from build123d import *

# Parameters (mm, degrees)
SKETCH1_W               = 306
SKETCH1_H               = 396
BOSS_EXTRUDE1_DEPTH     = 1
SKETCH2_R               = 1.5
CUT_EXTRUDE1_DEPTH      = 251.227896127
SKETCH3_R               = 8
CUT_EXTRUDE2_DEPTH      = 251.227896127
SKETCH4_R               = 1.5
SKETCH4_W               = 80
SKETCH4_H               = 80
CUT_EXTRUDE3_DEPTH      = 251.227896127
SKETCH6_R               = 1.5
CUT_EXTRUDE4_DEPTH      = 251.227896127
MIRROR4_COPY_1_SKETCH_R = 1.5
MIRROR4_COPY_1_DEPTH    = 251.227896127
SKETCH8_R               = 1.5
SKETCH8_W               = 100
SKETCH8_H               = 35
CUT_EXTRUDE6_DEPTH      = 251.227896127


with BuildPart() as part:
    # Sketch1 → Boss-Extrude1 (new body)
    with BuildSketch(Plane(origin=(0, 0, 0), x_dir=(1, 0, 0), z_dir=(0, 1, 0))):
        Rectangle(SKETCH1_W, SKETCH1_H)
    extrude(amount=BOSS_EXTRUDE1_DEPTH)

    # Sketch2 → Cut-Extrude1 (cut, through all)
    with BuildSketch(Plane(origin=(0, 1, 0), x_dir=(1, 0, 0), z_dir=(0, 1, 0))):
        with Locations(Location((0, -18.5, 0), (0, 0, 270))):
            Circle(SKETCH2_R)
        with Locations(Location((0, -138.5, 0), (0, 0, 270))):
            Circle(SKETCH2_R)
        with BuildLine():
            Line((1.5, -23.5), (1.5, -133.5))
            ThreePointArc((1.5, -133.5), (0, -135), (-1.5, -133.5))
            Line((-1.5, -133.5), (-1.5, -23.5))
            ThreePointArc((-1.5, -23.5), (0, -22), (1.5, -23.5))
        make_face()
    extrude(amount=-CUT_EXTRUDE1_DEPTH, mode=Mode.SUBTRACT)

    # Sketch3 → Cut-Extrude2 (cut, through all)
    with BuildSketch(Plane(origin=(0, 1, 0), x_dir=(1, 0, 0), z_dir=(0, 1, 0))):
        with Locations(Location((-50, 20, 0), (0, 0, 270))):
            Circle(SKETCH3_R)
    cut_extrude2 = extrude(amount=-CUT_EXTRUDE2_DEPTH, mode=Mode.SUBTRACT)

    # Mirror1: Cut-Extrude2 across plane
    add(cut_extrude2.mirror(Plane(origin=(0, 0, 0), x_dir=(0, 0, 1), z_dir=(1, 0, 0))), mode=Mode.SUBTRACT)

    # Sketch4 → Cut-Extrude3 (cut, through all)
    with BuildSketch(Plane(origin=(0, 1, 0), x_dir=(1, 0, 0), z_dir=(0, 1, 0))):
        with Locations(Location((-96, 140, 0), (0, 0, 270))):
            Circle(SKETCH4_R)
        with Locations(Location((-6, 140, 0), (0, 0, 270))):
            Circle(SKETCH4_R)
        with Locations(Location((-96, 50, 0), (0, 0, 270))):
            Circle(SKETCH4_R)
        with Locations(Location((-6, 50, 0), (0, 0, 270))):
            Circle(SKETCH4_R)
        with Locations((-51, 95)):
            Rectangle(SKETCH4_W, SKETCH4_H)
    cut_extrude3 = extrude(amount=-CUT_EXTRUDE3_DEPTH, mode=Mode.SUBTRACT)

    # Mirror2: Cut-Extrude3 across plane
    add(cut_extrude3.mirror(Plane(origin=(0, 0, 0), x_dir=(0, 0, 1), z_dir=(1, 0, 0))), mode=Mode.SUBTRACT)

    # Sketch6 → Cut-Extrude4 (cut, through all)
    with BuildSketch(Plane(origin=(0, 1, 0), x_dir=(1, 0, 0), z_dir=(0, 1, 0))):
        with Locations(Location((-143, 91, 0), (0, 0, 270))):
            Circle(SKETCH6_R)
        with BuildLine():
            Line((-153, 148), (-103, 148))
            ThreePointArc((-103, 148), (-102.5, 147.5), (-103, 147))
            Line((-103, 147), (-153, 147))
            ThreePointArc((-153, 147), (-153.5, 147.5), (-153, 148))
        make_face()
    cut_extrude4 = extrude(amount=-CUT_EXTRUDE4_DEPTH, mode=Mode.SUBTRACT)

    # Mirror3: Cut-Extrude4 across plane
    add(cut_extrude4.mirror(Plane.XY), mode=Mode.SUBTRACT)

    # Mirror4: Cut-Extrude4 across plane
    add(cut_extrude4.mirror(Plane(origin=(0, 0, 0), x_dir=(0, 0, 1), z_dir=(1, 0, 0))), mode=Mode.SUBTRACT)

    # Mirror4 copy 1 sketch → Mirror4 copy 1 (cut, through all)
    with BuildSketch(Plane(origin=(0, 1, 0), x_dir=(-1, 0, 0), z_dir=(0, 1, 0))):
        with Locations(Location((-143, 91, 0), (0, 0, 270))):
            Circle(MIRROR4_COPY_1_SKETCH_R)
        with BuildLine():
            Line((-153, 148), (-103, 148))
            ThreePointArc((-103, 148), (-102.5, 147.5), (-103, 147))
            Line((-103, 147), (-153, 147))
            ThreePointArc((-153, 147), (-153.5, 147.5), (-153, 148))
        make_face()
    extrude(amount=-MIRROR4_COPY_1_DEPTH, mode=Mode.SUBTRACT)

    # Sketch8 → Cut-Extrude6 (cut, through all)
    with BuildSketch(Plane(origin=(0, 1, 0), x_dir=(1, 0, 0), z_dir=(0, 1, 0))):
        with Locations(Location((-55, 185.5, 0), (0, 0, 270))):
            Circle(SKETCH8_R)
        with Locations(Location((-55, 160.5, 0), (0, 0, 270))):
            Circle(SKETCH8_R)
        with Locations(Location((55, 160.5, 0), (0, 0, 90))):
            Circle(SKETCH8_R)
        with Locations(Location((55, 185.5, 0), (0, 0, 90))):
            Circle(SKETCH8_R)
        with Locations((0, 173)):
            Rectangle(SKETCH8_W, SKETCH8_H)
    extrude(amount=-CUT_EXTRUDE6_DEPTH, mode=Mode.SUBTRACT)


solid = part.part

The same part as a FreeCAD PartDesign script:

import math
import FreeCAD as App
import Part
import Sketcher
Q = App.Units.Quantity

doc = App.newDocument("Part")
body = doc.addObject("PartDesign::Body", "Body")

sketch1 = body.newObject("Sketcher::SketchObject", "Sketch")
sketch1.AttachmentSupport = (doc.getObject("XZ_Plane"), [""])
sketch1.MapMode = "FlatFace"
sketch1.addGeometry(Part.LineSegment(App.Vector(-153, -198, 0), App.Vector(-153, 198, 0)), False)
sketch1.addGeometry(Part.LineSegment(App.Vector(-153, 198, 0), App.Vector(153, 198, 0)), False)
sketch1.addGeometry(Part.LineSegment(App.Vector(153, 198, 0), App.Vector(153, -198, 0)), False)
sketch1.addGeometry(Part.LineSegment(App.Vector(153, -198, 0), App.Vector(-153, -198, 0)), False)
sketch1.addConstraint(Sketcher.Constraint("Coincident", 0, 2, 1, 1))
sketch1.addConstraint(Sketcher.Constraint("Coincident", 1, 2, 2, 1))
sketch1.addConstraint(Sketcher.Constraint("Coincident", 2, 2, 3, 1))
sketch1.addConstraint(Sketcher.Constraint("Coincident", 3, 2, 0, 1))
sketch1.addConstraint(Sketcher.Constraint("Vertical", 0))
sketch1.addConstraint(Sketcher.Constraint("Horizontal", 1))
sketch1.addConstraint(Sketcher.Constraint("Vertical", 2))
sketch1.addConstraint(Sketcher.Constraint("Horizontal", 3))
sketch1.addConstraint(Sketcher.Constraint("Symmetric", 0, 2, 2, 2, -1, 1))
sketch1.addConstraint(Sketcher.Constraint("DistanceX", 1, 1, 1, 2, Q("306 mm")))
sketch1.addConstraint(Sketcher.Constraint("DistanceY", 0, 1, 0, 2, Q("396 mm")))
pad1 = body.newObject("PartDesign::Pad", "Pad")
pad1.Profile = sketch1
pad1.Length = 1
pad1.Reversed = True

sketch2 = body.newObject("Sketcher::SketchObject", "Sketch001")
sketch2.AttachmentSupport = (doc.getObject("XZ_Plane"), [""])
sketch2.MapMode = "FlatFace"
sketch2.AttachmentOffset = App.Placement(App.Vector(0, 0, -1), App.Rotation())
sketch2.addGeometry(Part.Circle(App.Vector(0, 18.5, 0), App.Vector(0, 0, 1), 1.5), False)
sketch2.addGeometry(Part.Circle(App.Vector(0, 138.5, 0), App.Vector(0, 0, 1), 1.5), False)
sketch2.addGeometry(Part.LineSegment(App.Vector(1.5, 133.5, 0), App.Vector(1.5, 23.5, 0)), False)
sketch2.addGeometry(Part.ArcOfCircle(Part.Circle(App.Vector(0, 23.5, 0), App.Vector(0, 0, 1), 1.5), math.radians(180), math.radians(360)), False)
sketch2.addGeometry(Part.LineSegment(App.Vector(-1.5, 23.5, 0), App.Vector(-1.5, 133.5, 0)), False)
sketch2.addGeometry(Part.ArcOfCircle(Part.Circle(App.Vector(0, 133.5, 0), App.Vector(0, 0, 1), 1.5), math.radians(0), math.radians(180)), False)
sketch2.addConstraint(Sketcher.Constraint("Tangent", 2, 2, 3, 2))
sketch2.addConstraint(Sketcher.Constraint("Tangent", 3, 1, 4, 1))
sketch2.addConstraint(Sketcher.Constraint("Tangent", 4, 2, 5, 2))
sketch2.addConstraint(Sketcher.Constraint("Tangent", 5, 1, 2, 1))
sketch2.addConstraint(Sketcher.Constraint("Vertical", 2))
sketch2.addConstraint(Sketcher.Constraint("Vertical", 4))
sketch2.addConstraint(Sketcher.Constraint("Equal", 0, 1))
sketch2.addConstraint(Sketcher.Constraint("Equal", 1, 3))
sketch2.addConstraint(Sketcher.Constraint("PointOnObject", 0, 3, -2))
sketch2.addConstraint(Sketcher.Constraint("PointOnObject", 1, 3, -2))
sketch2.addConstraint(Sketcher.Constraint("PointOnObject", 3, 3, -2))
sketch2.addConstraint(Sketcher.Constraint("Diameter", 0, Q("3 mm")))
sketch2.addConstraint(Sketcher.Constraint("DistanceY", 2, 2, 2, 1, Q("110 mm")))
sketch2.addConstraint(Sketcher.Constraint("DistanceY", 0, 3, 1, 3, Q("120 mm")))
sketch2.addConstraint(Sketcher.Constraint("DistanceY", 0, 3, 3, 3, Q("5 mm")))
sketch2.addConstraint(Sketcher.Constraint("DistanceY", -1, 1, 0, 3, Q("18.5 mm")))
pocket1 = body.newObject("PartDesign::Pocket", "Pocket")
pocket1.Profile = sketch2
pocket1.Type = "ThroughAll"
pocket1.Reversed = True

sketch3 = body.newObject("Sketcher::SketchObject", "Sketch002")
sketch3.AttachmentSupport = (doc.getObject("XZ_Plane"), [""])
sketch3.MapMode = "FlatFace"
sketch3.AttachmentOffset = App.Placement(App.Vector(0, 0, -1), App.Rotation())
sketch3.addGeometry(Part.Circle(App.Vector(-50, -20, 0), App.Vector(0, 0, 1), 8), False)
sketch3.addConstraint(Sketcher.Constraint("Diameter", 0, Q("16 mm")))
sketch3.addConstraint(Sketcher.Constraint("DistanceX", 0, 3, -1, 1, Q("50 mm")))
sketch3.addConstraint(Sketcher.Constraint("DistanceY", 0, 3, -1, 1, Q("20 mm")))
pocket2 = body.newObject("PartDesign::Pocket", "Pocket001")
pocket2.Profile = sketch3
pocket2.Type = "ThroughAll"
pocket2.Reversed = True
doc.recompute()

mirrored = body.newObject("PartDesign::Mirrored", "Mirrored")
mirrored.Originals = [pocket2]
mirrored.MirrorPlane = (doc.getObject("YZ_Plane"), [""])
body.Tip = mirrored

sketch4 = body.newObject("Sketcher::SketchObject", "Sketch003")
sketch4.AttachmentSupport = (doc.getObject("XZ_Plane"), [""])
sketch4.MapMode = "FlatFace"
sketch4.AttachmentOffset = App.Placement(App.Vector(0, 0, -1), App.Rotation())
sketch4.addGeometry(Part.Circle(App.Vector(-96, -140, 0), App.Vector(0, 0, 1), 1.5), False)
sketch4.addGeometry(Part.Circle(App.Vector(-6, -140, 0), App.Vector(0, 0, 1), 1.5), False)
sketch4.addGeometry(Part.Circle(App.Vector(-96, -50, 0), App.Vector(0, 0, 1), 1.5), False)
sketch4.addGeometry(Part.Circle(App.Vector(-6, -50, 0), App.Vector(0, 0, 1), 1.5), False)
sketch4.addGeometry(Part.LineSegment(App.Vector(-91, -135, 0), App.Vector(-91, -55, 0)), False)
sketch4.addGeometry(Part.LineSegment(App.Vector(-91, -55, 0), App.Vector(-11, -55, 0)), False)
sketch4.addGeometry(Part.LineSegment(App.Vector(-11, -55, 0), App.Vector(-11, -135, 0)), False)
sketch4.addGeometry(Part.LineSegment(App.Vector(-11, -135, 0), App.Vector(-91, -135, 0)), False)
sketch4.addConstraint(Sketcher.Constraint("Coincident", 4, 2, 5, 1))
sketch4.addConstraint(Sketcher.Constraint("Coincident", 5, 2, 6, 1))
sketch4.addConstraint(Sketcher.Constraint("Coincident", 6, 2, 7, 1))
sketch4.addConstraint(Sketcher.Constraint("Coincident", 7, 2, 4, 1))
sketch4.addConstraint(Sketcher.Constraint("Vertical", 4))
sketch4.addConstraint(Sketcher.Constraint("Horizontal", 5))
sketch4.addConstraint(Sketcher.Constraint("Vertical", 6))
sketch4.addConstraint(Sketcher.Constraint("Horizontal", 7))
sketch4.addConstraint(Sketcher.Constraint("Equal", 0, 1))
sketch4.addConstraint(Sketcher.Constraint("Equal", 1, 2))
sketch4.addConstraint(Sketcher.Constraint("Equal", 2, 3))
sketch4.addConstraint(Sketcher.Constraint("Horizontal", 0, 3, 1, 3))
sketch4.addConstraint(Sketcher.Constraint("Horizontal", 2, 3, 3, 3))
sketch4.addConstraint(Sketcher.Constraint("Vertical", 0, 3, 2, 3))
sketch4.addConstraint(Sketcher.Constraint("Vertical", 1, 3, 3, 3))
sketch4.addConstraint(Sketcher.Constraint("Equal", 7, 4))
sketch4.addConstraint(Sketcher.Constraint("Diameter", 0, Q("3 mm")))
sketch4.addConstraint(Sketcher.Constraint("DistanceX", 5, 1, 5, 2, Q("80 mm")))
sketch4.addConstraint(Sketcher.Constraint("DistanceX", 0, 3, -1, 1, Q("96 mm")))
sketch4.addConstraint(Sketcher.Constraint("DistanceY", 0, 3, -1, 1, Q("140 mm")))
sketch4.addConstraint(Sketcher.Constraint("DistanceX", 1, 3, -1, 1, Q("6 mm")))
sketch4.addConstraint(Sketcher.Constraint("DistanceY", 2, 3, -1, 1, Q("50 mm")))
sketch4.addConstraint(Sketcher.Constraint("DistanceX", 4, 2, -1, 1, Q("91 mm")))
sketch4.addConstraint(Sketcher.Constraint("DistanceY", 4, 2, -1, 1, Q("55 mm")))
pocket3 = body.newObject("PartDesign::Pocket", "Pocket002")
pocket3.Profile = sketch4
pocket3.Type = "ThroughAll"
pocket3.Reversed = True
doc.recompute()

mirrored2 = body.newObject("PartDesign::Mirrored", "Mirrored001")
mirrored2.Originals = [pocket3]
mirrored2.MirrorPlane = (doc.getObject("YZ_Plane"), [""])
body.Tip = mirrored2

sketch5 = body.newObject("Sketcher::SketchObject", "Sketch004")
sketch5.AttachmentSupport = (doc.getObject("XZ_Plane"), [""])
sketch5.MapMode = "FlatFace"
sketch5.AttachmentOffset = App.Placement(App.Vector(0, 0, -1), App.Rotation())
sketch5.addGeometry(Part.Circle(App.Vector(-143, -91, 0), App.Vector(0, 0, 1), 1.5), False)
sketch5.addGeometry(Part.LineSegment(App.Vector(-103, -148, 0), App.Vector(-153, -148, 0)), False)
sketch5.addGeometry(Part.ArcOfCircle(Part.Circle(App.Vector(-153, -147.5, 0), App.Vector(0, 0, 1), 0.5), math.radians(90), math.radians(270)), False)
sketch5.addGeometry(Part.LineSegment(App.Vector(-153, -147, 0), App.Vector(-103, -147, 0)), False)
sketch5.addGeometry(Part.ArcOfCircle(Part.Circle(App.Vector(-103, -147.5, 0), App.Vector(0, 0, 1), 0.5), math.radians(-90), math.radians(90)), False)
sketch5.addConstraint(Sketcher.Constraint("Tangent", 1, 2, 2, 2))
sketch5.addConstraint(Sketcher.Constraint("Tangent", 2, 1, 3, 1))
sketch5.addConstraint(Sketcher.Constraint("Tangent", 3, 2, 4, 2))
sketch5.addConstraint(Sketcher.Constraint("Tangent", 4, 1, 1, 1))
sketch5.addConstraint(Sketcher.Constraint("Horizontal", 1))
sketch5.addConstraint(Sketcher.Constraint("Horizontal", 3))
sketch5.addConstraint(Sketcher.Constraint("Diameter", 0, Q("3 mm")))
sketch5.addConstraint(Sketcher.Constraint("Radius", 2, Q("0.5 mm")))
sketch5.addConstraint(Sketcher.Constraint("DistanceX", 1, 2, 1, 1, Q("50 mm")))
sketch5.addConstraint(Sketcher.Constraint("DistanceX", 0, 3, -1, 1, Q("143 mm")))
sketch5.addConstraint(Sketcher.Constraint("DistanceY", 0, 3, -1, 1, Q("91 mm")))
sketch5.addConstraint(Sketcher.Constraint("DistanceX", 2, 3, -1, 1, Q("153 mm")))
sketch5.addConstraint(Sketcher.Constraint("DistanceY", 1, 2, -1, 1, Q("148 mm")))
pocket4 = body.newObject("PartDesign::Pocket", "Pocket003")
pocket4.Profile = sketch5
pocket4.Type = "ThroughAll"
pocket4.Reversed = True
doc.recompute()

mirrored3 = body.newObject("PartDesign::Mirrored", "Mirrored002")
mirrored3.Originals = [pocket4]
mirrored3.MirrorPlane = (doc.getObject("XY_Plane"), [""])
body.Tip = mirrored3
doc.recompute()

mirrored4 = body.newObject("PartDesign::Mirrored", "Mirrored003")
mirrored4.Originals = [pocket4]
mirrored4.MirrorPlane = (doc.getObject("YZ_Plane"), [""])
body.Tip = mirrored4

sketch6 = body.newObject("Sketcher::SketchObject", "Sketch005")
sketch6.AttachmentSupport = (doc.getObject("XZ_Plane"), [""])
sketch6.MapMode = "FlatFace"
sketch6.AttachmentOffset = App.Placement(App.Vector(0, 0, -1), App.Rotation())
sketch6.addGeometry(Part.Circle(App.Vector(143, 91, 0), App.Vector(0, 0, 1), 1.5), False)
sketch6.addGeometry(Part.LineSegment(App.Vector(103, 148, 0), App.Vector(153, 148, 0)), False)
sketch6.addGeometry(Part.ArcOfCircle(Part.Circle(App.Vector(153, 147.5, 0), App.Vector(0, 0, 1), 0.5), math.radians(-90), math.radians(90)), False)
sketch6.addGeometry(Part.LineSegment(App.Vector(153, 147, 0), App.Vector(103, 147, 0)), False)
sketch6.addGeometry(Part.ArcOfCircle(Part.Circle(App.Vector(103, 147.5, 0), App.Vector(0, 0, 1), 0.5), math.radians(90), math.radians(270)), False)
sketch6.addConstraint(Sketcher.Constraint("Tangent", 1, 2, 2, 2))
sketch6.addConstraint(Sketcher.Constraint("Tangent", 2, 1, 3, 1))
sketch6.addConstraint(Sketcher.Constraint("Tangent", 3, 2, 4, 2))
sketch6.addConstraint(Sketcher.Constraint("Tangent", 4, 1, 1, 1))
sketch6.addConstraint(Sketcher.Constraint("Horizontal", 1))
sketch6.addConstraint(Sketcher.Constraint("Horizontal", 3))
sketch6.addConstraint(Sketcher.Constraint("Diameter", 0, Q("3 mm")))
sketch6.addConstraint(Sketcher.Constraint("Radius", 2, Q("0.5 mm")))
sketch6.addConstraint(Sketcher.Constraint("DistanceX", 1, 1, 1, 2, Q("50 mm")))
sketch6.addConstraint(Sketcher.Constraint("DistanceX", -1, 1, 0, 3, Q("143 mm")))
sketch6.addConstraint(Sketcher.Constraint("DistanceY", -1, 1, 0, 3, Q("91 mm")))
sketch6.addConstraint(Sketcher.Constraint("DistanceX", -1, 1, 2, 3, Q("153 mm")))
sketch6.addConstraint(Sketcher.Constraint("DistanceY", -1, 1, 1, 2, Q("148 mm")))
pocket5 = body.newObject("PartDesign::Pocket", "Pocket004")
pocket5.Profile = sketch6
pocket5.Type = "ThroughAll"
pocket5.Reversed = True

sketch7 = body.newObject("Sketcher::SketchObject", "Sketch006")
sketch7.AttachmentSupport = (doc.getObject("XZ_Plane"), [""])
sketch7.MapMode = "FlatFace"
sketch7.AttachmentOffset = App.Placement(App.Vector(0, 0, -1), App.Rotation())
sketch7.addGeometry(Part.Circle(App.Vector(-55, -185.5, 0), App.Vector(0, 0, 1), 1.5), False)
sketch7.addGeometry(Part.Circle(App.Vector(-55, -160.5, 0), App.Vector(0, 0, 1), 1.5), False)
sketch7.addGeometry(Part.Circle(App.Vector(55, -160.5, 0), App.Vector(0, 0, 1), 1.5), False)
sketch7.addGeometry(Part.Circle(App.Vector(55, -185.5, 0), App.Vector(0, 0, 1), 1.5), False)
sketch7.addGeometry(Part.LineSegment(App.Vector(-50, -190.5, 0), App.Vector(-50, -155.5, 0)), False)
sketch7.addGeometry(Part.LineSegment(App.Vector(-50, -155.5, 0), App.Vector(50, -155.5, 0)), False)
sketch7.addGeometry(Part.LineSegment(App.Vector(50, -155.5, 0), App.Vector(50, -190.5, 0)), False)
sketch7.addGeometry(Part.LineSegment(App.Vector(50, -190.5, 0), App.Vector(-50, -190.5, 0)), False)
sketch7.addConstraint(Sketcher.Constraint("Coincident", 4, 2, 5, 1))
sketch7.addConstraint(Sketcher.Constraint("Coincident", 5, 2, 6, 1))
sketch7.addConstraint(Sketcher.Constraint("Coincident", 6, 2, 7, 1))
sketch7.addConstraint(Sketcher.Constraint("Coincident", 7, 2, 4, 1))
sketch7.addConstraint(Sketcher.Constraint("Vertical", 4))
sketch7.addConstraint(Sketcher.Constraint("Horizontal", 5))
sketch7.addConstraint(Sketcher.Constraint("Vertical", 6))
sketch7.addConstraint(Sketcher.Constraint("Horizontal", 7))
sketch7.addConstraint(Sketcher.Constraint("Equal", 0, 1))
sketch7.addConstraint(Sketcher.Constraint("Equal", 1, 2))
sketch7.addConstraint(Sketcher.Constraint("Equal", 2, 3))
sketch7.addConstraint(Sketcher.Constraint("Symmetric", 1, 3, 2, 3, -2))
sketch7.addConstraint(Sketcher.Constraint("Symmetric", 0, 3, 3, 3, -2))
sketch7.addConstraint(Sketcher.Constraint("Vertical", 0, 3, 1, 3))
sketch7.addConstraint(Sketcher.Constraint("Diameter", 0, Q("3 mm")))
sketch7.addConstraint(Sketcher.Constraint("DistanceX", 5, 1, 5, 2, Q("100 mm")))
sketch7.addConstraint(Sketcher.Constraint("DistanceY", 4, 1, 4, 2, Q("35 mm")))
sketch7.addConstraint(Sketcher.Constraint("DistanceX", 0, 3, -1, 1, Q("55 mm")))
sketch7.addConstraint(Sketcher.Constraint("DistanceX", 4, 2, -1, 1, Q("50 mm")))
sketch7.addConstraint(Sketcher.Constraint("DistanceY", 0, 3, 1, 3, Q("25 mm")))
sketch7.addConstraint(Sketcher.Constraint("DistanceY", 1, 3, 4, 2, Q("5 mm")))
sketch7.addConstraint(Sketcher.Constraint("DistanceY", 0, 3, -1, 1, Q("185.5 mm")))
pocket6 = body.newObject("PartDesign::Pocket", "Pocket005")
pocket6.Profile = sketch7
pocket6.Type = "ThroughAll"
pocket6.Reversed = True

doc.recompute()
